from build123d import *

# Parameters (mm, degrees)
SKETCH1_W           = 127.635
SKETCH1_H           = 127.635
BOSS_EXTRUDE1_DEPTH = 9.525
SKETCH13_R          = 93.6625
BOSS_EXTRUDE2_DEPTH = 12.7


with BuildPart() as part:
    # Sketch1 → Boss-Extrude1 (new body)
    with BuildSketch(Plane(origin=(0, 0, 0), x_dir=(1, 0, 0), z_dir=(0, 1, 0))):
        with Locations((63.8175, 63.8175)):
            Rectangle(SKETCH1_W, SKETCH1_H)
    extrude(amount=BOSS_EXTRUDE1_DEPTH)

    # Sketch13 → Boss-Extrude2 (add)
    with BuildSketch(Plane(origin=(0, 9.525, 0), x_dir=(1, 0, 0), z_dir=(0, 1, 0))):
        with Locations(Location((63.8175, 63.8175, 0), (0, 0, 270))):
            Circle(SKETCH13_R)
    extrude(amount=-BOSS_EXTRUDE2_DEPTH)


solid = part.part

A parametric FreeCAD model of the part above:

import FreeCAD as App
import Part
import Sketcher
from FreeCAD import Vector
Q = App.Units.Quantity

doc = App.newDocument("Part")
body = doc.addObject("PartDesign::Body", "Body")

# Sketch on XZ plane
sketch1 = body.newObject("Sketcher::SketchObject", "Sketch")
sketch1.AttachmentSupport = (doc.getObject("XZ_Plane"), [""])
sketch1.MapMode = "FlatFace"
sketch1.addGeometry(Part.LineSegment(Vector(0, -128, 0), Vector(0, 0, 0)), False)
sketch1.addGeometry(Part.LineSegment(Vector(0, 0, 0), Vector(128, 0, 0)), False)
sketch1.addGeometry(Part.LineSegment(Vector(128, 0, 0), Vector(128, -128, 0)), False)
sketch1.addGeometry(Part.LineSegment(Vector(128, -128, 0), Vector(0, -128, 0)), False)
sketch1.addConstraint(Sketcher.Constraint("Coincident", 0, 2, 1, 1))
sketch1.addConstraint(Sketcher.Constraint("Coincident", 1, 2, 2, 1))
sketch1.addConstraint(Sketcher.Constraint("Coincident", 2, 2, 3, 1))
sketch1.addConstraint(Sketcher.Constraint("Coincident", 3, 2, 0, 1))
sketch1.addConstraint(Sketcher.Constraint("Vertical", 0))
sketch1.addConstraint(Sketcher.Constraint("Horizontal", 1))
sketch1.addConstraint(Sketcher.Constraint("Vertical", 2))
sketch1.addConstraint(Sketcher.Constraint("Horizontal", 3))
sketch1.addConstraint(Sketcher.Constraint("Coincident", 0, 2, -1, 1))
sketch1.addConstraint(Sketcher.Constraint("Equal", 3, 0))
sketch1.addConstraint(Sketcher.Constraint("DistanceX", 1, 1, 1, 2, Q("5.025 in")))
pad1 = body.newObject("PartDesign::Pad", "Pad")
pad1.Profile = sketch1
pad1.Length = Q("0.375 in")
pad1.Reversed = True

# Sketch on XZ plane
sketch2 = body.newObject("Sketcher::SketchObject", "Sketch001")
sketch2.AttachmentSupport = (doc.getObject("XZ_Plane"), [""])
sketch2.MapMode = "FlatFace"
sketch2.AttachmentOffset = App.Placement(Vector(0, 0, -0.375 * 25.4), App.Rotation())
sketch2.addGeometry(Part.Circle(Vector(64, -64, 0), Vector(0, 0, 1), 94), False)
sketch2.addConstraint(Sketcher.Constraint("Diameter", 0, Q("7.375 in")))
sketch2.addConstraint(Sketcher.Constraint("DistanceX", -1, 1, 0, 3, Q("2.5125 in")))
sketch2.addConstraint(Sketcher.Constraint("DistanceY", 0, 3, -1, 1, Q("2.5125 in")))
pad2 = body.newObject("PartDesign::Pad", "Pad001")
pad2.Profile = sketch2
pad2.Length = Q("0.5 in")

doc.recompute()
